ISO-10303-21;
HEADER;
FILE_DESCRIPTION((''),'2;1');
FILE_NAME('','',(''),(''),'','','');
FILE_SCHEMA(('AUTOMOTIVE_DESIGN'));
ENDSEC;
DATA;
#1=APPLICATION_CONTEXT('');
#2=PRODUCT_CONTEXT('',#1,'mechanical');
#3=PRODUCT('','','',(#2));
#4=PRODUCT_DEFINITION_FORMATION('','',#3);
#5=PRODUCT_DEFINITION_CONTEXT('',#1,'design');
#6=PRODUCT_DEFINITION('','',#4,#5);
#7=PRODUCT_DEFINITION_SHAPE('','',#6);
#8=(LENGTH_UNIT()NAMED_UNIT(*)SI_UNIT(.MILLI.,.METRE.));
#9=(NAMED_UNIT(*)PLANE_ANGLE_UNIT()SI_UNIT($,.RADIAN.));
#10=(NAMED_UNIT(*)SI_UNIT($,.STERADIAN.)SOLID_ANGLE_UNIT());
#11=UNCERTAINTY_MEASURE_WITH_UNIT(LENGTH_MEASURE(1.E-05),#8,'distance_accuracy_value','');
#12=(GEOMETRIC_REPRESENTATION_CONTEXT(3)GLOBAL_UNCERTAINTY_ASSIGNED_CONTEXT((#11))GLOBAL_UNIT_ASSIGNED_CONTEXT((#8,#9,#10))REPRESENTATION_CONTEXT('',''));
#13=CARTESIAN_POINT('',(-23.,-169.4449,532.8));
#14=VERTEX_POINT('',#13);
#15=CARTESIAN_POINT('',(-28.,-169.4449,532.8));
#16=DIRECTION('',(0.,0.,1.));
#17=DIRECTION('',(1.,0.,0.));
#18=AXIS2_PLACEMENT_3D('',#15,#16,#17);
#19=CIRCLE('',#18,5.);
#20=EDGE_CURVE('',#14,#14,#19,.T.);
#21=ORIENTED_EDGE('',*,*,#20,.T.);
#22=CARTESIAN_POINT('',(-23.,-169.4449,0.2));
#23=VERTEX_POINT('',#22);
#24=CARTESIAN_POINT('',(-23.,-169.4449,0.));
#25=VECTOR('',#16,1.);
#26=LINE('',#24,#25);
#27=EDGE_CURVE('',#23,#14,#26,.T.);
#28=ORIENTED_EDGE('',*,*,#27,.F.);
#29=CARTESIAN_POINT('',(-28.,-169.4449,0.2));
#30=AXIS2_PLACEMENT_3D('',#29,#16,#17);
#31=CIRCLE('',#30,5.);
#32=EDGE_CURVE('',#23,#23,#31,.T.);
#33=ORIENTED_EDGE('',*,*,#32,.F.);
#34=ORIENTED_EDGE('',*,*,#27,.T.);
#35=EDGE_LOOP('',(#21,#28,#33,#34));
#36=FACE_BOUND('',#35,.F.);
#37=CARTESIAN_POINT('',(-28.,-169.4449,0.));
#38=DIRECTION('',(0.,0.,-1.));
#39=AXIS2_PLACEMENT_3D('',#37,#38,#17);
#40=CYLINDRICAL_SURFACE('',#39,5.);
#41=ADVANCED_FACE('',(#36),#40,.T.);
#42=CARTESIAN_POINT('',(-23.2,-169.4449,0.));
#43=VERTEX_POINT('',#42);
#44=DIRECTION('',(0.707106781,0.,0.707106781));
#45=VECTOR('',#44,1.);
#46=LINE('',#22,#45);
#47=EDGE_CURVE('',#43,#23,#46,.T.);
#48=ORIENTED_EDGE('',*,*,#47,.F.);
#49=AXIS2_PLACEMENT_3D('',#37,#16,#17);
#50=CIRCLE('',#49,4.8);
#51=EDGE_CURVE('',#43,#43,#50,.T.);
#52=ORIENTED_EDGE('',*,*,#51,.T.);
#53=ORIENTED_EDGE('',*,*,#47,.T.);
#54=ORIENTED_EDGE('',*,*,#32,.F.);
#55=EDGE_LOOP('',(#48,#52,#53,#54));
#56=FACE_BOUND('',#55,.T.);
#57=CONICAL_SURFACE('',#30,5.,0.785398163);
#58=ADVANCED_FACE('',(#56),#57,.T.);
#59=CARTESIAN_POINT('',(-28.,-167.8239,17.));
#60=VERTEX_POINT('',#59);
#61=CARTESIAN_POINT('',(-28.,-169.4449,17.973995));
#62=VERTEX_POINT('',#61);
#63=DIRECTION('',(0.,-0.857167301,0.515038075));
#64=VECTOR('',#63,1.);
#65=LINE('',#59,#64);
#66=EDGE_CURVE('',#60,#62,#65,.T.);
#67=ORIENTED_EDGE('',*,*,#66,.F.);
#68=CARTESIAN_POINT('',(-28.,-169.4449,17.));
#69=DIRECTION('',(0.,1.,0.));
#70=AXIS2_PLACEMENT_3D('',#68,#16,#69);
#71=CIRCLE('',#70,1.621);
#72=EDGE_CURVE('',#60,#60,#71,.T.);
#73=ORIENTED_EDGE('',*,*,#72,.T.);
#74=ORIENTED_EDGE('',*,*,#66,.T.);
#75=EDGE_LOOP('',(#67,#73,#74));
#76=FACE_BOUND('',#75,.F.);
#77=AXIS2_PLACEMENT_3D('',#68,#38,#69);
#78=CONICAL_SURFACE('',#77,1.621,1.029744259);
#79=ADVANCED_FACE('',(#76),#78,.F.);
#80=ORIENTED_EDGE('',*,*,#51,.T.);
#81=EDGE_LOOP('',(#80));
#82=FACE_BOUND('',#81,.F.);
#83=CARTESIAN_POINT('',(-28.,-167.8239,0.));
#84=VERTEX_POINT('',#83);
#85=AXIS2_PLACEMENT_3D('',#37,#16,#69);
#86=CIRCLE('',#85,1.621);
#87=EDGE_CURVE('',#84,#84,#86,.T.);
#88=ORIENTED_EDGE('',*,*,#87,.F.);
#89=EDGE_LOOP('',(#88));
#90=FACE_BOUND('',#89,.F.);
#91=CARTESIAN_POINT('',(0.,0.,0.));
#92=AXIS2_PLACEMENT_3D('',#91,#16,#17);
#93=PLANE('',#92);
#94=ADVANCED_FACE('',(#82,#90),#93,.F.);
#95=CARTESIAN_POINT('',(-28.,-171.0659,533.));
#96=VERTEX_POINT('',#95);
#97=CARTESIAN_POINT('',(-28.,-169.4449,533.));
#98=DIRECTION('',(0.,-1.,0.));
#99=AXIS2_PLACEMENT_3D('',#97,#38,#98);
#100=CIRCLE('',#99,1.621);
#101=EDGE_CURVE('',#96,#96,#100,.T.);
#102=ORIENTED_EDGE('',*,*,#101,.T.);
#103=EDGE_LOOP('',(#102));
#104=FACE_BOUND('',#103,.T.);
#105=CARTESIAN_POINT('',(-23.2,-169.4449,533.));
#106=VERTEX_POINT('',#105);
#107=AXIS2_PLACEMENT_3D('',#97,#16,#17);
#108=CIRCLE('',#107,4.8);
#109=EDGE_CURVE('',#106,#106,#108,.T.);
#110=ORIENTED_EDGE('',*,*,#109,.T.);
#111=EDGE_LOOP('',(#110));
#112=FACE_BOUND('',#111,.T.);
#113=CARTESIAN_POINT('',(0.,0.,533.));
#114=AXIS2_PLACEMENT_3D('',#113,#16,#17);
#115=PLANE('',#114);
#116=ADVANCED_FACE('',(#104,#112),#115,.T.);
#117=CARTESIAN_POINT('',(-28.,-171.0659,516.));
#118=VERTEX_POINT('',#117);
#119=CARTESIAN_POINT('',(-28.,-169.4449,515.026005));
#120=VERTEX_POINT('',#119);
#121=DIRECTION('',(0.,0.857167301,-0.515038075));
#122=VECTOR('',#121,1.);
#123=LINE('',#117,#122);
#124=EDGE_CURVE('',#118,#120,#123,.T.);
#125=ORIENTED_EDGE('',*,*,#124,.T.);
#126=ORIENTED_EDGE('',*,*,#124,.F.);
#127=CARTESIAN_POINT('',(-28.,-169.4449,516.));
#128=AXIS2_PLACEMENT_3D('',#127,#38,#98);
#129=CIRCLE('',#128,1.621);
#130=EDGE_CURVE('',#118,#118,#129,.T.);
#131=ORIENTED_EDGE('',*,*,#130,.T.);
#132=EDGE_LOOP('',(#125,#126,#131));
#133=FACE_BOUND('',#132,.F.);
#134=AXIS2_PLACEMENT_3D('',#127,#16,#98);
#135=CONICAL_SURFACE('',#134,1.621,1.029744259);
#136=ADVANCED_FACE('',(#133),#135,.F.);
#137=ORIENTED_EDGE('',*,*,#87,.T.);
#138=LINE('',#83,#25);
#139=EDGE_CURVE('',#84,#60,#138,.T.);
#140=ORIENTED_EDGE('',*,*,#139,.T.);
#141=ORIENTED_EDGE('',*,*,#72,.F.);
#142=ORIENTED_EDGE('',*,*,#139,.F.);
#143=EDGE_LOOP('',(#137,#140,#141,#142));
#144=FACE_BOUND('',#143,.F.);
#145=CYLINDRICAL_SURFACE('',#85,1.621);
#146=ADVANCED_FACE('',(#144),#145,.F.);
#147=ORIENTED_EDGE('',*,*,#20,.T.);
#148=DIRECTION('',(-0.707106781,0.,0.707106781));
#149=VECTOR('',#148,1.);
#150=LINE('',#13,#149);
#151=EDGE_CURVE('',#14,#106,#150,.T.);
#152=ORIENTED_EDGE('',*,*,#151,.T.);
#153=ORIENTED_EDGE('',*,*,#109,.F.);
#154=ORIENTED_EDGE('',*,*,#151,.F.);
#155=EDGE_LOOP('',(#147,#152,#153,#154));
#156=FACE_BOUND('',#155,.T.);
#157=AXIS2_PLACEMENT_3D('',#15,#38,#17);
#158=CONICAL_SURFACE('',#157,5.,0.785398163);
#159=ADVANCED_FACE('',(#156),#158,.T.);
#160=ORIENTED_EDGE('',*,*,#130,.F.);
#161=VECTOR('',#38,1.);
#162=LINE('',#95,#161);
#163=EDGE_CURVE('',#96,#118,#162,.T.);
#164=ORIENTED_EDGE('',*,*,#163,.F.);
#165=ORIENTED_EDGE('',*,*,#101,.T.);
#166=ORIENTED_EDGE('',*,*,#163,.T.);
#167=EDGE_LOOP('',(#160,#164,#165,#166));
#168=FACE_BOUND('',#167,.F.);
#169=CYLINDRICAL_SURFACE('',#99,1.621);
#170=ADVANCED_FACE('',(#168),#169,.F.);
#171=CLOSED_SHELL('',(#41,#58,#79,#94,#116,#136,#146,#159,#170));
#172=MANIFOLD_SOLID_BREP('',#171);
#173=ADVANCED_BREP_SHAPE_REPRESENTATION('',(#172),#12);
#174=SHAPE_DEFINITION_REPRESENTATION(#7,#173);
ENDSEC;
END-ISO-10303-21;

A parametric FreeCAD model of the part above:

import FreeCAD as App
import Part
import Sketcher


def edges_at(feature, points):
    """Names of the edges that pass closest to the given points."""
    edges = feature.Shape.Edges
    near = lambda p: min(range(len(edges)), key=lambda i: edges[i].distToShape(Part.Vertex(*p))[0])
    return sorted({f"Edge{near(p) + 1}" for p in points})

doc = App.newDocument("Part")
body = doc.addObject("PartDesign::Body", "Body")

sketch1 = doc.addObject("Sketcher::SketchObject", "Sketch")
body.addObject(sketch1)
sketch1.AttachmentSupport = (doc.XY_Plane, [""])
sketch1.MapMode = "FlatFace"
sketch1.addGeometry(Part.Circle(App.Vector(-28, -169, 0), App.Vector(0, 0, 1), 5), False)
sketch1.addConstraint([
    Sketcher.Constraint("Diameter", 0, 10.0),
    Sketcher.Constraint("DistanceX", 0, 3, -1, 1, 28.0),
    Sketcher.Constraint("DistanceY", 0, 3, -1, 1, 169.445),
])
pad1 = doc.addObject("PartDesign::Pad", "Pad")
body.addObject(pad1)
pad1.Profile = sketch1
pad1.Length = 533

sketch2 = doc.addObject("Sketcher::SketchObject", "Sketch001")
body.addObject(sketch2)
sketch2.AttachmentSupport = (doc.XY_Plane, [""])
sketch2.MapMode = "FlatFace"
sketch2.AttachmentOffset = App.Placement(App.Vector(0, 0, 533), App.Rotation())
sketch2.addGeometry(Part.Circle(App.Vector(-28, -169.4, 0), App.Vector(0, 0, 1), 1.6), False)
sketch2.addConstraint([
    Sketcher.Constraint("Diameter", 0, 3.242),
    Sketcher.Constraint("DistanceX", 0, 3, -1, 1, 28.0),
    Sketcher.Constraint("DistanceY", 0, 3, -1, 1, 169.445),
])
doc.recompute()
hole = doc.addObject("PartDesign::Hole", "Hole")
body.addObject(hole)
hole.Profile = sketch2
hole.ThreadType = "None"
hole.Diameter = 3.242
hole.DepthType = "Dimension"
hole.Depth = 17
hole.DrillPoint = "Angled"
hole.DrillPointAngle = 118

sketch3 = doc.addObject("Sketcher::SketchObject", "Sketch002")
body.addObject(sketch3)
sketch3.AttachmentSupport = (doc.XY_Plane, [""])
sketch3.MapMode = "FlatFace"
sketch3.addGeometry(Part.Circle(App.Vector(-28, -169.4, 0), App.Vector(0, 0, 1), 1.6), False)
sketch3.addConstraint([
    Sketcher.Constraint("Diameter", 0, 3.242),
    Sketcher.Constraint("DistanceX", 0, 3, -1, 1, 28.0),
    Sketcher.Constraint("DistanceY", 0, 3, -1, 1, 169.445),
])
doc.recompute()
hole2 = doc.addObject("PartDesign::Hole", "Hole001")
body.addObject(hole2)
hole2.Profile = sketch3
hole2.ThreadType = "None"
hole2.Diameter = 3.242
hole2.DepthType = "Dimension"
hole2.Depth = 17
hole2.DrillPoint = "Angled"
hole2.DrillPointAngle = 118
hole2.Reversed = True
doc.recompute()

chamfer = doc.addObject("PartDesign::Chamfer", "Chamfer")
body.addObject(chamfer)
chamfer.Base = (hole2, edges_at(hole2, [(-33, -169.445, 0), (-33, -169.445, 533)]))
chamfer.Size = 0.2

doc.recompute()
